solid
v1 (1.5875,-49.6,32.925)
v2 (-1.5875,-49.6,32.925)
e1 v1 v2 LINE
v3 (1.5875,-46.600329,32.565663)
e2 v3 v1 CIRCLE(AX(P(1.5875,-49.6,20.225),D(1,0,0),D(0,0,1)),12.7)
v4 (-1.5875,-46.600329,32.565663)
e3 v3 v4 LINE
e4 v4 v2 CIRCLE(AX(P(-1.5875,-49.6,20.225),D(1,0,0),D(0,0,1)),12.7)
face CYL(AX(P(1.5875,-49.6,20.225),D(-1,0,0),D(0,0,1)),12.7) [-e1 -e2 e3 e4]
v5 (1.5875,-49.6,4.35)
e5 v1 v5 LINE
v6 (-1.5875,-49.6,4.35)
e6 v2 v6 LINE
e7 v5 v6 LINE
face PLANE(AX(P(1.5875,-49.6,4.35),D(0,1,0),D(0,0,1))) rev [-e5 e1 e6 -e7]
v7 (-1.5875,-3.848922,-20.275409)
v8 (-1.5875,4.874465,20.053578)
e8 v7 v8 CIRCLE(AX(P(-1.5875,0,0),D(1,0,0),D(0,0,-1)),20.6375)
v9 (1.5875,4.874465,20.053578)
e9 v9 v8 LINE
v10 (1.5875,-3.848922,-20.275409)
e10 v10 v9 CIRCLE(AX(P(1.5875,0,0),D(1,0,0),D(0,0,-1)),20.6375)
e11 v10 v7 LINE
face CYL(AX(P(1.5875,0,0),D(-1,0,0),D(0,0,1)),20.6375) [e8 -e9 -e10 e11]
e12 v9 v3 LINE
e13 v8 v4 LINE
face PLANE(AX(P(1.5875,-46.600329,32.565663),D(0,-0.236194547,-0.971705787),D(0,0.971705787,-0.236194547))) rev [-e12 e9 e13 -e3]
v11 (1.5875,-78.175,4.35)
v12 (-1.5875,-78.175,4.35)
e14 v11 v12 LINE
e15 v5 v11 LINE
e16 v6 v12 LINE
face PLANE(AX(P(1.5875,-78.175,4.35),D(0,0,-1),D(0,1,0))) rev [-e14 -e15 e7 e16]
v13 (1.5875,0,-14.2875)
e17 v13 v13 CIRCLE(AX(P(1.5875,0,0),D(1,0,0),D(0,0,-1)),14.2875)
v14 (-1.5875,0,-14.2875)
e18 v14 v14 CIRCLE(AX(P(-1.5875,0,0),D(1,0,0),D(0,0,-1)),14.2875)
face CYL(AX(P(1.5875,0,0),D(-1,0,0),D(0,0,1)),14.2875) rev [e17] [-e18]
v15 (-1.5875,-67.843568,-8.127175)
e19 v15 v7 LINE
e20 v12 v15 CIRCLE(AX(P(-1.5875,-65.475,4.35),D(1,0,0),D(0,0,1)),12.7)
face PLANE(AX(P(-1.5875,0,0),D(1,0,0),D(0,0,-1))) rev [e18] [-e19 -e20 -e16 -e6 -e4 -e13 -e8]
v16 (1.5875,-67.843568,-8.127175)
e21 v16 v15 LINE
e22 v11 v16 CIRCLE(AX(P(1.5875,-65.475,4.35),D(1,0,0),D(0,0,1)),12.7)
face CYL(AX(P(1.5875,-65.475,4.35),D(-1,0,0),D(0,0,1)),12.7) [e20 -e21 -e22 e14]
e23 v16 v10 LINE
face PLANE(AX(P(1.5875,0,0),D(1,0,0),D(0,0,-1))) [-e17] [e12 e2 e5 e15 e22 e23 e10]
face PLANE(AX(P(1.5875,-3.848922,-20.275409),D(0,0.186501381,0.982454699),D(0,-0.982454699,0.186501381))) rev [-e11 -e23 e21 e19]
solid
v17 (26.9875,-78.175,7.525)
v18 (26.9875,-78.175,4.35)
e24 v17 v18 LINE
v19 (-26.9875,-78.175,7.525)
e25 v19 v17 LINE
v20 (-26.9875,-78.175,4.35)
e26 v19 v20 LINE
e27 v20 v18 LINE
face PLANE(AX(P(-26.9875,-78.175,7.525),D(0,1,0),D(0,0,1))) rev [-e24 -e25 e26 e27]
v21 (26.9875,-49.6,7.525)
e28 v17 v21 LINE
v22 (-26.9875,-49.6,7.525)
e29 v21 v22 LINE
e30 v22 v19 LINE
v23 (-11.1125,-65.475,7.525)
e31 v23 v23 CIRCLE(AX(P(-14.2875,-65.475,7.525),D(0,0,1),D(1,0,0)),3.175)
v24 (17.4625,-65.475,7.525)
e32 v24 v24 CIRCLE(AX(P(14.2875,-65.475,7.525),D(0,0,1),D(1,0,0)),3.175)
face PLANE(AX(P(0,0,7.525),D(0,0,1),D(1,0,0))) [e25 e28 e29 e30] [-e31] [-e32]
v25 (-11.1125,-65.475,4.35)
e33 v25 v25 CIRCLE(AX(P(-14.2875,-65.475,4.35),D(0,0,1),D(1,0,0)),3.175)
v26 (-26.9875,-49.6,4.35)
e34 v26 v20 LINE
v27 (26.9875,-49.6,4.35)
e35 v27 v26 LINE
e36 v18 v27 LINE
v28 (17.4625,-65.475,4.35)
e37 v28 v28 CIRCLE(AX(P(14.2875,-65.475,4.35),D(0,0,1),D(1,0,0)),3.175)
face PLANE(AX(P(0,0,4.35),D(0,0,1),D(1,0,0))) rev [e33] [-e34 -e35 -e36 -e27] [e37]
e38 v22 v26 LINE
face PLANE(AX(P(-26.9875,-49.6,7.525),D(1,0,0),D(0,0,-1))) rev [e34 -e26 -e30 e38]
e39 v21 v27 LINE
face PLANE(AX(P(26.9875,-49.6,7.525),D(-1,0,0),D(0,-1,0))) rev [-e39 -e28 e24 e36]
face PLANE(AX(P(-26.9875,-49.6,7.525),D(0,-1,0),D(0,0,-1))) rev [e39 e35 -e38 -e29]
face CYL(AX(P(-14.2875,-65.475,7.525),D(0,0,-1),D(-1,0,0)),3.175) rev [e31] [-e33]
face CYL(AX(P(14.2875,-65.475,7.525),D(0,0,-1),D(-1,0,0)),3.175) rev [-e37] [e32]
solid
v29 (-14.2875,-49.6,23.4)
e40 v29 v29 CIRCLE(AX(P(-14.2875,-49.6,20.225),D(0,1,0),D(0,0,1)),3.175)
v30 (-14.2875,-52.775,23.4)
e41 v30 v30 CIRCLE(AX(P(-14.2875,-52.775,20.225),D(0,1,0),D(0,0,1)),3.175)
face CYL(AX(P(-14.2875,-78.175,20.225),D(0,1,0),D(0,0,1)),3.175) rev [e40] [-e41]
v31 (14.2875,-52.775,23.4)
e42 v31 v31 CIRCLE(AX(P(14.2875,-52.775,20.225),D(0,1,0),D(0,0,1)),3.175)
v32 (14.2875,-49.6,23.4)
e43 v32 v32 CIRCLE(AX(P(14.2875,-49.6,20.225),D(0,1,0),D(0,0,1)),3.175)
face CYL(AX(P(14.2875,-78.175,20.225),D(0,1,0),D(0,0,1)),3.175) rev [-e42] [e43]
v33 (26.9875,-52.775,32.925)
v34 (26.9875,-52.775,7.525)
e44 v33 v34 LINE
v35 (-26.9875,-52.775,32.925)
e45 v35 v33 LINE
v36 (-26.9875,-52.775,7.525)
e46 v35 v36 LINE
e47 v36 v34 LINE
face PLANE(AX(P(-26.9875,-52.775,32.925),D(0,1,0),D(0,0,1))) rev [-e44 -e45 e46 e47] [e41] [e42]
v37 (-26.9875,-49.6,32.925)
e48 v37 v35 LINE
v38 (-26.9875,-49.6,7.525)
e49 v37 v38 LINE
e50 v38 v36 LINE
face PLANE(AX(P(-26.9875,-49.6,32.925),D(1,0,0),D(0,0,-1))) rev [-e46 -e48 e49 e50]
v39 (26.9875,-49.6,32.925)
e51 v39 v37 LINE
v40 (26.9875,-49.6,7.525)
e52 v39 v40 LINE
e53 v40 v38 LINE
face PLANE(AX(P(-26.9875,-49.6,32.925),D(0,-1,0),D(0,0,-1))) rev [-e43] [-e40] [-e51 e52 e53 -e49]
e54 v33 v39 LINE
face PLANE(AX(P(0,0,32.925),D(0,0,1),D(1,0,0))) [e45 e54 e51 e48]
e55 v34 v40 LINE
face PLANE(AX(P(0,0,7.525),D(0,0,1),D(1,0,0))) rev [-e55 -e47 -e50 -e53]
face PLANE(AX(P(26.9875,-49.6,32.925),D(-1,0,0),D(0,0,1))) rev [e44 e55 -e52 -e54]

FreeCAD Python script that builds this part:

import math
import FreeCAD as App
import Part
import Sketcher

V = App.Vector
Q = App.Units.Quantity

doc = App.newDocument("Part")
body = doc.addObject("PartDesign::Body", "Body")

# Sketch on YZ plane
sketch1 = doc.addObject("Sketcher::SketchObject", "Sketch")
body.addObject(sketch1)
sketch1.AttachmentSupport = (doc.YZ_Plane, [""])
sketch1.MapMode = "FlatFace"
sketch1.addGeometry([
    Part.LineSegment(V(-67.843568, -8.127175, 0), V(-3.848922, -20.275409, 0)),  # 0
    Part.ArcOfCircle(Part.Circle(V(0, 0, 0), V(0, 0, 1), 20.6375), math.radians(-100.748679), math.radians(76.337952)),  # 1
    Part.LineSegment(V(4.874465, 20.053578, 0), V(-46.600329, 32.565663, 0)),  # 2
    Part.ArcOfCircle(Part.Circle(V(-49.6, 20.225, 0), V(0, 0, 1), 12.7), math.radians(76.337952), math.radians(90)),  # 3
    Part.LineSegment(V(-49.6, 32.925, 0), V(-49.6, 4.35, 0)),  # 4
    Part.LineSegment(V(-49.6, 4.35, 0), V(-78.175, 4.35, 0)),  # 5
    Part.ArcOfCircle(Part.Circle(V(-65.475, 4.35, 0), V(0, 0, 1), 12.7), math.radians(180), math.radians(259.251321)),  # 6
    Part.Circle(V(0, 0, 0), V(0, 0, 1), 14.2875),  # 7
], False)
sketch1.addConstraint([
    Sketcher.Constraint("Tangent", 0, 2, 1, 1),
    Sketcher.Constraint("Tangent", 1, 2, 2, 1),
    Sketcher.Constraint("Tangent", 2, 2, 3, 1),
    Sketcher.Constraint("Coincident", 3, 2, 4, 1),
    Sketcher.Constraint("Coincident", 4, 2, 5, 1),
    Sketcher.Constraint("Coincident", 5, 2, 6, 1),
    Sketcher.Constraint("Tangent", 6, 2, 0, 1),
    Sketcher.Constraint("Vertical", 4),
    Sketcher.Constraint("Horizontal", 5),
    Sketcher.Constraint("Coincident", 1, 3, -1, 1),
    Sketcher.Constraint("Coincident", 7, 3, -1, 1),
    Sketcher.Constraint("Equal", 3, 6),
    Sketcher.Constraint("Horizontal", 6, 3, 4, 2),
    Sketcher.Constraint("Equal", 5, 4),
    Sketcher.Constraint("Radius", 3, Q("0.5 in")),
    Sketcher.Constraint("Diameter", 7, Q("1.125 in")),
    Sketcher.Constraint("Radius", 1, Q("0.8125 in")),
    Sketcher.Constraint("DistanceX", 5, 2, 5, 1, Q("1.125 in")),
    Sketcher.Constraint("DistanceX", 6, 3, 3, 3, Q("0.625 in")),
    Sketcher.Constraint("DistanceX", 3, 3, -1, 1, 49.6),
    Sketcher.Constraint("DistanceY", -1, 1, 3, 3, 20.225),
])
pad1 = doc.addObject("PartDesign::Pad", "Pad")
body.addObject(pad1)
pad1.Profile = sketch1
pad1.Length = Q("0.125 in")
pad1.Midplane = True
body2 = doc.addObject("PartDesign::Body", "Body001")

# Sketch on XY plane
sketch2 = doc.addObject("Sketcher::SketchObject", "Sketch001")
body2.addObject(sketch2)
sketch2.AttachmentSupport = (doc.getObject("XY_Plane001"), [""])
sketch2.MapMode = "FlatFace"
sketch2.AttachmentOffset = App.Placement(V(0, 0, 4.35), App.Rotation())
sketch2.addGeometry([
    Part.LineSegment(V(-26.9875, -49.6, 0), V(-26.9875, -78.175, 0)),  # 0
    Part.LineSegment(V(-26.9875, -78.175, 0), V(26.9875, -78.175, 0)),  # 1
    Part.LineSegment(V(26.9875, -78.175, 0), V(26.9875, -49.6, 0)),  # 2
    Part.LineSegment(V(26.9875, -49.6, 0), V(-26.9875, -49.6, 0)),  # 3
    Part.Circle(V(-14.2875, -65.475, 0), V(0, 0, 1), 3.175),  # 4
    Part.Circle(V(14.2875, -65.475, 0), V(0, 0, 1), 3.175),  # 5
], False)
sketch2.addConstraint([
    Sketcher.Constraint("Coincident", 0, 2, 1, 1),
    Sketcher.Constraint("Coincident", 1, 2, 2, 1),
    Sketcher.Constraint("Coincident", 2, 2, 3, 1),
    Sketcher.Constraint("Coincident", 3, 2, 0, 1),
    Sketcher.Constraint("Vertical", 0),
    Sketcher.Constraint("Horizontal", 1),
    Sketcher.Constraint("Vertical", 2),
    Sketcher.Constraint("Horizontal", 3),
    Sketcher.Constraint("Equal", 4, 5),
    Sketcher.Constraint("Symmetric", 4, 3, 5, 3, -2),
    Sketcher.Constraint("Diameter", 4, Q("0.25 in")),
    Sketcher.Constraint("DistanceX", 0, 2, 4, 3, Q("0.5 in")),
    Sketcher.Constraint("DistanceY", 0, 2, 4, 3, Q("0.5 in")),
    Sketcher.Constraint("DistanceX", 5, 3, 1, 2, Q("0.5 in")),
    Sketcher.Constraint("DistanceX", 1, 1, 1, 2, Q("2.125 in")),
    Sketcher.Constraint("DistanceY", 0, 2, 0, 1, Q("1.125 in")),
    Sketcher.Constraint("DistanceY", 4, 3, -1, 1, 65.475),
])
pad2 = doc.addObject("PartDesign::Pad", "Pad001")
body2.addObject(pad2)
pad2.Profile = sketch2
pad2.Length = Q("0.125 in")
body3 = doc.addObject("PartDesign::Body", "Body002")

# Sketch on XY plane
sketch3 = doc.addObject("Sketcher::SketchObject", "Sketch002")
body3.addObject(sketch3)
sketch3.AttachmentSupport = (doc.getObject("XY_Plane002"), [""])
sketch3.MapMode = "FlatFace"
sketch3.AttachmentOffset = App.Placement(V(0, 0, 7.525), App.Rotation())
sketch3.addGeometry([
    Part.LineSegment(V(-26.9875, -49.6, 0), V(-26.9875, -52.775, 0)),
    Part.LineSegment(V(-26.9875, -52.775, 0), V(26.9875, -52.775, 0)),
    Part.LineSegment(V(26.9875, -52.775, 0), V(26.9875, -49.6, 0)),
    Part.LineSegment(V(26.9875, -49.6, 0), V(-26.9875, -49.6, 0)),
], False)
sketch3.addConstraint([
    Sketcher.Constraint("Coincident", 0, 2, 1, 1),
    Sketcher.Constraint("Coincident", 1, 2, 2, 1),
    Sketcher.Constraint("Coincident", 2, 2, 3, 1),
    Sketcher.Constraint("Coincident", 3, 2, 0, 1),
    Sketcher.Constraint("Vertical", 0),
    Sketcher.Constraint("Horizontal", 1),
    Sketcher.Constraint("Vertical", 2),
    Sketcher.Constraint("Horizontal", 3),
    Sketcher.Constraint("DistanceX", 1, 1, 1, 2, Q("2.125 in")),
    Sketcher.Constraint("DistanceY", 0, 2, 0, 1, Q("0.125 in")),
    Sketcher.Constraint("DistanceX", 0, 2, -1, 1, Q("1.0625 in")),
    Sketcher.Constraint("DistanceY", 0, 2, -1, 1, 52.775),
])
pad3 = doc.addObject("PartDesign::Pad", "Pad002")
body3.addObject(pad3)
pad3.Profile = sketch3
pad3.Length = Q("1 in")

# Sketch on XZ plane
sketch4 = doc.addObject("Sketcher::SketchObject", "Sketch003")
body3.addObject(sketch4)
sketch4.AttachmentSupport = (doc.getObject("XZ_Plane002"), [""])
sketch4.MapMode = "FlatFace"
sketch4.AttachmentOffset = App.Placement(V(0, 0, 49.6), App.Rotation())
sketch4.addGeometry([
    Part.Circle(V(-14.2875, 20.225, 0), V(0, 0, 1), 3.175),
    Part.Circle(V(14.2875, 20.225, 0), V(0, 0, 1), 3.175),
], False)
sketch4.addConstraint([
    Sketcher.Constraint("Equal", 0, 1),
    Sketcher.Constraint("Symmetric", 0, 3, 1, 3, -2),
    Sketcher.Constraint("Diameter", 0, Q("0.25 in")),
    Sketcher.Constraint("DistanceX", 0, 3, -1, 1, Q("0.5625 in")),
    Sketcher.Constraint("DistanceY", -1, 1, 0, 3, 20.225),
])
pocket1 = doc.addObject("PartDesign::Pocket", "Pocket")
body3.addObject(pocket1)
pocket1.Profile = sketch4
pocket1.Type = "ThroughAll"
pocket1.Reversed = True

doc.recompute()
